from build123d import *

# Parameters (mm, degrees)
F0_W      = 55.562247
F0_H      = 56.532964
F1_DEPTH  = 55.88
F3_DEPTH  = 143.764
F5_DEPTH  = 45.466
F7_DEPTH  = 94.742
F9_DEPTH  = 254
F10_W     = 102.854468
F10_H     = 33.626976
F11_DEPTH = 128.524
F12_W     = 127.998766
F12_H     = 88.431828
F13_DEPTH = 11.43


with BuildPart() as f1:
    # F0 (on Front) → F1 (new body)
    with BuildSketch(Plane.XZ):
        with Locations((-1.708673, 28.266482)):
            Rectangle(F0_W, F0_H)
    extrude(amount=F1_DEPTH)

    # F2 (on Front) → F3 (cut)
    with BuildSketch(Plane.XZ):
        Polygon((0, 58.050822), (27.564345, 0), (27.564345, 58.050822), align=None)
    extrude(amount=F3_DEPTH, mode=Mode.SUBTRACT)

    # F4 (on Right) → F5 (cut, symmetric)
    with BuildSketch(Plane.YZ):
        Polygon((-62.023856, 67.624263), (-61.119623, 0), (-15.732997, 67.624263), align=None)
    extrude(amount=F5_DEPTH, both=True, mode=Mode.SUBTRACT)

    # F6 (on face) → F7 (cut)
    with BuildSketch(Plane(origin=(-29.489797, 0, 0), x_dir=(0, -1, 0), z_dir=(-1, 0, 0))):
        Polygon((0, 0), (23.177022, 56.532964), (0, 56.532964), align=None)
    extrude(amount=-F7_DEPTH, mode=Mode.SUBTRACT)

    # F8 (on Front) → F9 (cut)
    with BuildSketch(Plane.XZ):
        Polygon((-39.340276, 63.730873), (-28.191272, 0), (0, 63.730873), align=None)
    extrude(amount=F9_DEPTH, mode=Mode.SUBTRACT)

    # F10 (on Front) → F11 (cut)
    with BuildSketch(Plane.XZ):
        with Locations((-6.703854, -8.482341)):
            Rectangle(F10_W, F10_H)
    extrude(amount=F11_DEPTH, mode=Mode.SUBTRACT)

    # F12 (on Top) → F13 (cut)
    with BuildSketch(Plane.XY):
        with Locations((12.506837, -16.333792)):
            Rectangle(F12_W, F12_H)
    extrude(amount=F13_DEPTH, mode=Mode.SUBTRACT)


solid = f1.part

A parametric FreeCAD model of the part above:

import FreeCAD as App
import Part
import Sketcher

V = App.Vector
Q = App.Units.Quantity

doc = App.newDocument("Part")
body = doc.addObject("PartDesign::Body", "Body")
body.AllowCompound = True

# Sketch on XZ plane
sketch1 = doc.addObject("Sketcher::SketchObject", "Sketch")
body.addObject(sketch1)
sketch1.AttachmentSupport = (doc.XZ_Plane, [""])
sketch1.MapMode = "FlatFace"
sketch1.addGeometry([
    Part.LineSegment(V(-29.489797, 56.532964, 0), V(-29.489797, 0, 0)),
    Part.LineSegment(V(-29.489797, 0, 0), V(26.07245, 0, 0)),
    Part.LineSegment(V(26.07245, 0, 0), V(26.07245, 56.532964, 0)),
    Part.LineSegment(V(26.07245, 56.532964, 0), V(-29.489797, 56.532964, 0)),
], False)
sketch1.addConstraint([
    Sketcher.Constraint("Coincident", 0, 2, 1, 1),
    Sketcher.Constraint("Coincident", 1, 2, 2, 1),
    Sketcher.Constraint("Coincident", 2, 2, 3, 1),
    Sketcher.Constraint("Coincident", 3, 2, 0, 1),
    Sketcher.Constraint("Vertical", 0),
    Sketcher.Constraint("Horizontal", 1),
    Sketcher.Constraint("Vertical", 2),
    Sketcher.Constraint("Horizontal", 3),
    Sketcher.Constraint("PointOnObject", 0, 2, -1),
    Sketcher.Constraint("DistanceX", 1, 1, 1, 2, Q("55.562247 mm")),
    Sketcher.Constraint("DistanceY", 0, 2, 0, 1, Q("56.532964 mm")),
    Sketcher.Constraint("DistanceX", -1, 1, 1, 2, Q("26.07245 mm")),
])
pad1 = doc.addObject("PartDesign::Pad", "Pad")
body.addObject(pad1)
pad1.Profile = sketch1
pad1.Length = Q("2.2 in")

# Sketch on XZ plane
sketch2 = doc.addObject("Sketcher::SketchObject", "Sketch001")
body.addObject(sketch2)
sketch2.AttachmentSupport = (doc.XZ_Plane, [""])
sketch2.MapMode = "FlatFace"
sketch2.addGeometry([
    Part.LineSegment(V(0, 58.050822, 0), V(27.564345, 0, 0)),
    Part.LineSegment(V(27.564345, 0, 0), V(27.564345, 58.050822, 0)),
    Part.LineSegment(V(27.564345, 58.050822, 0), V(0, 58.050822, 0)),
], False)
sketch2.addConstraint([
    Sketcher.Constraint("Coincident", 0, 2, 1, 1),
    Sketcher.Constraint("Coincident", 1, 2, 2, 1),
    Sketcher.Constraint("Coincident", 2, 2, 0, 1),
    Sketcher.Constraint("Vertical", 1),
    Sketcher.Constraint("Horizontal", 2),
    Sketcher.Constraint("PointOnObject", 0, 2, -1),
    Sketcher.Constraint("PointOnObject", 2, 2, -2),
    Sketcher.Constraint("DistanceY", 1, 1, 1, 2, Q("58.050822 mm")),
    Sketcher.Constraint("DistanceX", 2, 2, 2, 1, Q("27.564345 mm")),
])
pocket1 = doc.addObject("PartDesign::Pocket", "Pocket")
body.addObject(pocket1)
pocket1.Profile = sketch2
pocket1.Length = Q("5.66 in")
pocket1.Reversed = True

# Sketch on YZ plane
sketch3 = doc.addObject("Sketcher::SketchObject", "Sketch002")
body.addObject(sketch3)
sketch3.AttachmentSupport = (doc.YZ_Plane, [""])
sketch3.MapMode = "FlatFace"
sketch3.addGeometry([
    Part.LineSegment(V(-62.023856, 67.624263, 0), V(-61.119623, 0, 0)),
    Part.LineSegment(V(-61.119623, 0, 0), V(-15.732997, 67.624263, 0)),
    Part.LineSegment(V(-15.732997, 67.624263, 0), V(-62.023856, 67.624263, 0)),
], False)
sketch3.addConstraint([
    Sketcher.Constraint("Coincident", 0, 2, 1, 1),
    Sketcher.Constraint("Coincident", 1, 2, 2, 1),
    Sketcher.Constraint("Coincident", 2, 2, 0, 1),
    Sketcher.Constraint("Horizontal", 2),
    Sketcher.Constraint("PointOnObject", 0, 2, -1),
    Sketcher.Constraint("DistanceX", 2, 2, 2, 1, Q("46.290859 mm")),
    Sketcher.Constraint("Distance", 0, Q("67.630308 mm")),
    Sketcher.Constraint("Distance", 1, Q("81.443151 mm")),
    Sketcher.Constraint("DistanceX", 0, 2, -1, 1, Q("61.119623 mm")),
])
pocket2 = doc.addObject("PartDesign::Pocket", "Pocket001")
body.addObject(pocket2)
pocket2.Profile = sketch3
pocket2.Length = Q("3.58 in")
pocket2.Midplane = True

# Sketch on YZ plane
sketch4 = doc.addObject("Sketcher::SketchObject", "Sketch003")
body.addObject(sketch4)
sketch4.AttachmentSupport = (doc.YZ_Plane, [""])
sketch4.MapMode = "FlatFace"
sketch4.AttachmentOffset = App.Placement(V(0, 0, -29.489797), App.Rotation())
sketch4.addGeometry([
    Part.LineSegment(V(0, 0, 0), V(-23.177022, 56.532964, 0)),
    Part.LineSegment(V(-23.177022, 56.532964, 0), V(0, 56.532964, 0)),
    Part.LineSegment(V(0, 56.532964, 0), V(0, 0, 0)),
], False)
sketch4.addConstraint([
    Sketcher.Constraint("Coincident", 0, 2, 1, 1),
    Sketcher.Constraint("Coincident", 1, 2, 2, 1),
    Sketcher.Constraint("Coincident", 2, 2, 0, 1),
    Sketcher.Constraint("Horizontal", 1),
    Sketcher.Constraint("Vertical", 2),
    Sketcher.Constraint("Coincident", 2, 2, -1, 1),
    Sketcher.Constraint("DistanceX", 1, 1, 1, 2, Q("23.177022 mm")),
    Sketcher.Constraint("DistanceY", 2, 2, 2, 1, Q("56.532964 mm")),
])
pocket3 = doc.addObject("PartDesign::Pocket", "Pocket002")
body.addObject(pocket3)
pocket3.Profile = sketch4
pocket3.Length = Q("3.73 in")
pocket3.Reversed = True

# Sketch on XZ plane
sketch5 = doc.addObject("Sketcher::SketchObject", "Sketch004")
body.addObject(sketch5)
sketch5.AttachmentSupport = (doc.XZ_Plane, [""])
sketch5.MapMode = "FlatFace"
sketch5.addGeometry([
    Part.LineSegment(V(-39.340276, 63.730873, 0), V(-28.191272, 0, 0)),
    Part.LineSegment(V(-28.191272, 0, 0), V(0, 63.730873, 0)),
    Part.LineSegment(V(0, 63.730873, 0), V(-39.340276, 63.730873, 0)),
], False)
sketch5.addConstraint([
    Sketcher.Constraint("Coincident", 0, 2, 1, 1),
    Sketcher.Constraint("Coincident", 1, 2, 2, 1),
    Sketcher.Constraint("Coincident", 2, 2, 0, 1),
    Sketcher.Constraint("Horizontal", 2),
    Sketcher.Constraint("PointOnObject", 0, 2, -1),
    Sketcher.Constraint("PointOnObject", 1, 2, -2),
    Sketcher.Constraint("Distance", 0, Q("64.698721 mm")),
    Sketcher.Constraint("DistanceX", 2, 2, 2, 1, Q("39.340276 mm")),
    Sketcher.Constraint("Distance", 1, Q("69.687675 mm")),
])
pocket4 = doc.addObject("PartDesign::Pocket", "Pocket003")
body.addObject(pocket4)
pocket4.Profile = sketch5
pocket4.Length = Q("10 in")
pocket4.Reversed = True

# Sketch on XZ plane
sketch6 = doc.addObject("Sketcher::SketchObject", "Sketch005")
body.addObject(sketch6)
sketch6.AttachmentSupport = (doc.XZ_Plane, [""])
sketch6.MapMode = "FlatFace"
sketch6.addGeometry([
    Part.LineSegment(V(-58.131088, 8.331147, 0), V(-58.131088, -25.295829, 0)),
    Part.LineSegment(V(-58.131088, -25.295829, 0), V(44.72338, -25.295829, 0)),
    Part.LineSegment(V(44.72338, -25.295829, 0), V(44.72338, 8.331147, 0)),
    Part.LineSegment(V(44.72338, 8.331147, 0), V(-58.131088, 8.331147, 0)),
], False)
sketch6.addConstraint([
    Sketcher.Constraint("Coincident", 0, 2, 1, 1),
    Sketcher.Constraint("Coincident", 1, 2, 2, 1),
    Sketcher.Constraint("Coincident", 2, 2, 3, 1),
    Sketcher.Constraint("Coincident", 3, 2, 0, 1),
    Sketcher.Constraint("Vertical", 0),
    Sketcher.Constraint("Horizontal", 1),
    Sketcher.Constraint("Vertical", 2),
    Sketcher.Constraint("Horizontal", 3),
    Sketcher.Constraint("DistanceX", 1, 1, 1, 2, Q("102.854468 mm")),
    Sketcher.Constraint("DistanceY", 0, 2, 0, 1, Q("33.626976 mm")),
    Sketcher.Constraint("DistanceY", 0, 2, -1, 1, Q("25.295829 mm")),
    Sketcher.Constraint("DistanceX", -1, 1, 1, 2, Q("44.72338 mm")),
])
pocket5 = doc.addObject("PartDesign::Pocket", "Pocket004")
body.addObject(pocket5)
pocket5.Profile = sketch6
pocket5.Length = Q("5.06 in")
pocket5.Reversed = True

# Sketch on XY plane
sketch7 = doc.addObject("Sketcher::SketchObject", "Sketch006")
body.addObject(sketch7)
sketch7.AttachmentSupport = (doc.XY_Plane, [""])
sketch7.MapMode = "FlatFace"
sketch7.addGeometry([
    Part.LineSegment(V(-51.492546, 27.882122, 0), V(-51.492546, -60.549706, 0)),
    Part.LineSegment(V(-51.492546, -60.549706, 0), V(76.50622, -60.549706, 0)),
    Part.LineSegment(V(76.50622, -60.549706, 0), V(76.50622, 27.882122, 0)),
    Part.LineSegment(V(76.50622, 27.882122, 0), V(-51.492546, 27.882122, 0)),
], False)
sketch7.addConstraint([
    Sketcher.Constraint("Coincident", 0, 2, 1, 1),
    Sketcher.Constraint("Coincident", 1, 2, 2, 1),
    Sketcher.Constraint("Coincident", 2, 2, 3, 1),
    Sketcher.Constraint("Coincident", 3, 2, 0, 1),
    Sketcher.Constraint("Vertical", 0),
    Sketcher.Constraint("Horizontal", 1),
    Sketcher.Constraint("Vertical", 2),
    Sketcher.Constraint("Horizontal", 3),
    Sketcher.Constraint("DistanceX", 1, 1, 1, 2, Q("127.998766 mm")),
    Sketcher.Constraint("DistanceY", 0, 2, 0, 1, Q("88.431828 mm")),
    Sketcher.Constraint("DistanceX", -1, 1, 1, 2, Q("76.50622 mm")),
    Sketcher.Constraint("DistanceY", -1, 1, 2, 2, Q("27.882122 mm")),
])
pocket6 = doc.addObject("PartDesign::Pocket", "Pocket005")
body.addObject(pocket6)
pocket6.Profile = sketch7
pocket6.Length = Q("0.45 in")
pocket6.Reversed = True

doc.recompute()
